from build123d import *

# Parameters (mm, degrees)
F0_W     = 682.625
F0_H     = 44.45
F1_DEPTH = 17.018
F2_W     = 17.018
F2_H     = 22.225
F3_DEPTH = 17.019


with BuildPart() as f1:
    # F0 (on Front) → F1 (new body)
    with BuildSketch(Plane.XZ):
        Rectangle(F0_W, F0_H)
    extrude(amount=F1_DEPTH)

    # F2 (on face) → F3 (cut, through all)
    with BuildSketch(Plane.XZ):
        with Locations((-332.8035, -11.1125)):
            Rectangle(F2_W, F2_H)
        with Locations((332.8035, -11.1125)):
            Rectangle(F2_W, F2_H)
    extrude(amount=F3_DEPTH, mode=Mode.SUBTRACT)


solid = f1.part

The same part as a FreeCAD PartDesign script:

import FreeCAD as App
import Part
import Sketcher
from FreeCAD import Vector
Q = App.Units.Quantity


def add_polygon(sketch, points):
    """Adds a closed chain of lines whose ends are joined by coincident constraints."""
    first, n = sketch.GeometryCount, len(points)
    for a, b in zip(points, points[1:] + points[:1]):
        sketch.addGeometry(Part.LineSegment(App.Vector(*a, 0), App.Vector(*b, 0)), False)
    for i in range(n):
        sketch.addConstraint(Sketcher.Constraint("Coincident", first + i, 2, first + (i + 1) % n, 1))

doc = App.newDocument("Part")
body = doc.addObject("PartDesign::Body", "Body")

sketch1 = body.newObject("Sketcher::SketchObject", "Sketch")
sketch1.AttachmentSupport = (doc.getObject("XZ_Plane"), [""])
sketch1.MapMode = "FlatFace"
add_polygon(sketch1, [(-341.3125, 22.225), (-341.3125, -22.225), (341.3125, -22.225), (341.3125, 22.225)])
sketch1.addConstraint(Sketcher.Constraint("Vertical", 0))
sketch1.addConstraint(Sketcher.Constraint("Horizontal", 1))
sketch1.addConstraint(Sketcher.Constraint("Vertical", 2))
sketch1.addConstraint(Sketcher.Constraint("Horizontal", 3))
sketch1.addConstraint(Sketcher.Constraint("Symmetric", 0, 2, 2, 2, -1, 1))
sketch1.addConstraint(Sketcher.Constraint("DistanceY", 0, 2, 0, 1, Q("1.75 in")))
sketch1.addConstraint(Sketcher.Constraint("DistanceX", 1, 1, 1, 2, Q("26.875 in")))
pad1 = body.newObject("PartDesign::Pad", "Pad")
pad1.Profile = sketch1
pad1.Length = Q("0.67 in")

sketch2 = body.newObject("Sketcher::SketchObject", "Sketch001")
sketch2.AttachmentSupport = (doc.getObject("XZ_Plane"), [""])
sketch2.MapMode = "FlatFace"
add_polygon(sketch2, [(-341.3125, 0), (-341.3125, -22.225), (-324.2945, -22.225), (-324.2945, 0)])
add_polygon(sketch2, [(324.2945, 0), (324.2945, -22.225), (341.3125, -22.225), (341.3125, 0)])
sketch2.addConstraint(Sketcher.Constraint("Vertical", 0))
sketch2.addConstraint(Sketcher.Constraint("Horizontal", 1))
sketch2.addConstraint(Sketcher.Constraint("Vertical", 2))
sketch2.addConstraint(Sketcher.Constraint("Horizontal", 3))
sketch2.addConstraint(Sketcher.Constraint("Vertical", 4))
sketch2.addConstraint(Sketcher.Constraint("Horizontal", 5))
sketch2.addConstraint(Sketcher.Constraint("Vertical", 6))
sketch2.addConstraint(Sketcher.Constraint("Horizontal", 7))
sketch2.addConstraint(Sketcher.Constraint("Symmetric", 3, 2, 6, 2, -1, 1))
sketch2.addConstraint(Sketcher.Constraint("Symmetric", 1, 2, 4, 2, -2))
sketch2.addConstraint(Sketcher.Constraint("PointOnObject", 2, 2, -1))
sketch2.addConstraint(Sketcher.Constraint("DistanceX", 1, 1, 1, 2, Q("0.67 in")))
sketch2.addConstraint(Sketcher.Constraint("DistanceY", 0, 2, 0, 1, Q("0.875 in")))
sketch2.addConstraint(Sketcher.Constraint("DistanceX", 0, 2, -1, 1, Q("13.4375 in")))
pocket1 = body.newObject("PartDesign::Pocket", "Pocket")
pocket1.Profile = sketch2
pocket1.Type = "ThroughAll"
pocket1.Reversed = True

doc.recompute()
